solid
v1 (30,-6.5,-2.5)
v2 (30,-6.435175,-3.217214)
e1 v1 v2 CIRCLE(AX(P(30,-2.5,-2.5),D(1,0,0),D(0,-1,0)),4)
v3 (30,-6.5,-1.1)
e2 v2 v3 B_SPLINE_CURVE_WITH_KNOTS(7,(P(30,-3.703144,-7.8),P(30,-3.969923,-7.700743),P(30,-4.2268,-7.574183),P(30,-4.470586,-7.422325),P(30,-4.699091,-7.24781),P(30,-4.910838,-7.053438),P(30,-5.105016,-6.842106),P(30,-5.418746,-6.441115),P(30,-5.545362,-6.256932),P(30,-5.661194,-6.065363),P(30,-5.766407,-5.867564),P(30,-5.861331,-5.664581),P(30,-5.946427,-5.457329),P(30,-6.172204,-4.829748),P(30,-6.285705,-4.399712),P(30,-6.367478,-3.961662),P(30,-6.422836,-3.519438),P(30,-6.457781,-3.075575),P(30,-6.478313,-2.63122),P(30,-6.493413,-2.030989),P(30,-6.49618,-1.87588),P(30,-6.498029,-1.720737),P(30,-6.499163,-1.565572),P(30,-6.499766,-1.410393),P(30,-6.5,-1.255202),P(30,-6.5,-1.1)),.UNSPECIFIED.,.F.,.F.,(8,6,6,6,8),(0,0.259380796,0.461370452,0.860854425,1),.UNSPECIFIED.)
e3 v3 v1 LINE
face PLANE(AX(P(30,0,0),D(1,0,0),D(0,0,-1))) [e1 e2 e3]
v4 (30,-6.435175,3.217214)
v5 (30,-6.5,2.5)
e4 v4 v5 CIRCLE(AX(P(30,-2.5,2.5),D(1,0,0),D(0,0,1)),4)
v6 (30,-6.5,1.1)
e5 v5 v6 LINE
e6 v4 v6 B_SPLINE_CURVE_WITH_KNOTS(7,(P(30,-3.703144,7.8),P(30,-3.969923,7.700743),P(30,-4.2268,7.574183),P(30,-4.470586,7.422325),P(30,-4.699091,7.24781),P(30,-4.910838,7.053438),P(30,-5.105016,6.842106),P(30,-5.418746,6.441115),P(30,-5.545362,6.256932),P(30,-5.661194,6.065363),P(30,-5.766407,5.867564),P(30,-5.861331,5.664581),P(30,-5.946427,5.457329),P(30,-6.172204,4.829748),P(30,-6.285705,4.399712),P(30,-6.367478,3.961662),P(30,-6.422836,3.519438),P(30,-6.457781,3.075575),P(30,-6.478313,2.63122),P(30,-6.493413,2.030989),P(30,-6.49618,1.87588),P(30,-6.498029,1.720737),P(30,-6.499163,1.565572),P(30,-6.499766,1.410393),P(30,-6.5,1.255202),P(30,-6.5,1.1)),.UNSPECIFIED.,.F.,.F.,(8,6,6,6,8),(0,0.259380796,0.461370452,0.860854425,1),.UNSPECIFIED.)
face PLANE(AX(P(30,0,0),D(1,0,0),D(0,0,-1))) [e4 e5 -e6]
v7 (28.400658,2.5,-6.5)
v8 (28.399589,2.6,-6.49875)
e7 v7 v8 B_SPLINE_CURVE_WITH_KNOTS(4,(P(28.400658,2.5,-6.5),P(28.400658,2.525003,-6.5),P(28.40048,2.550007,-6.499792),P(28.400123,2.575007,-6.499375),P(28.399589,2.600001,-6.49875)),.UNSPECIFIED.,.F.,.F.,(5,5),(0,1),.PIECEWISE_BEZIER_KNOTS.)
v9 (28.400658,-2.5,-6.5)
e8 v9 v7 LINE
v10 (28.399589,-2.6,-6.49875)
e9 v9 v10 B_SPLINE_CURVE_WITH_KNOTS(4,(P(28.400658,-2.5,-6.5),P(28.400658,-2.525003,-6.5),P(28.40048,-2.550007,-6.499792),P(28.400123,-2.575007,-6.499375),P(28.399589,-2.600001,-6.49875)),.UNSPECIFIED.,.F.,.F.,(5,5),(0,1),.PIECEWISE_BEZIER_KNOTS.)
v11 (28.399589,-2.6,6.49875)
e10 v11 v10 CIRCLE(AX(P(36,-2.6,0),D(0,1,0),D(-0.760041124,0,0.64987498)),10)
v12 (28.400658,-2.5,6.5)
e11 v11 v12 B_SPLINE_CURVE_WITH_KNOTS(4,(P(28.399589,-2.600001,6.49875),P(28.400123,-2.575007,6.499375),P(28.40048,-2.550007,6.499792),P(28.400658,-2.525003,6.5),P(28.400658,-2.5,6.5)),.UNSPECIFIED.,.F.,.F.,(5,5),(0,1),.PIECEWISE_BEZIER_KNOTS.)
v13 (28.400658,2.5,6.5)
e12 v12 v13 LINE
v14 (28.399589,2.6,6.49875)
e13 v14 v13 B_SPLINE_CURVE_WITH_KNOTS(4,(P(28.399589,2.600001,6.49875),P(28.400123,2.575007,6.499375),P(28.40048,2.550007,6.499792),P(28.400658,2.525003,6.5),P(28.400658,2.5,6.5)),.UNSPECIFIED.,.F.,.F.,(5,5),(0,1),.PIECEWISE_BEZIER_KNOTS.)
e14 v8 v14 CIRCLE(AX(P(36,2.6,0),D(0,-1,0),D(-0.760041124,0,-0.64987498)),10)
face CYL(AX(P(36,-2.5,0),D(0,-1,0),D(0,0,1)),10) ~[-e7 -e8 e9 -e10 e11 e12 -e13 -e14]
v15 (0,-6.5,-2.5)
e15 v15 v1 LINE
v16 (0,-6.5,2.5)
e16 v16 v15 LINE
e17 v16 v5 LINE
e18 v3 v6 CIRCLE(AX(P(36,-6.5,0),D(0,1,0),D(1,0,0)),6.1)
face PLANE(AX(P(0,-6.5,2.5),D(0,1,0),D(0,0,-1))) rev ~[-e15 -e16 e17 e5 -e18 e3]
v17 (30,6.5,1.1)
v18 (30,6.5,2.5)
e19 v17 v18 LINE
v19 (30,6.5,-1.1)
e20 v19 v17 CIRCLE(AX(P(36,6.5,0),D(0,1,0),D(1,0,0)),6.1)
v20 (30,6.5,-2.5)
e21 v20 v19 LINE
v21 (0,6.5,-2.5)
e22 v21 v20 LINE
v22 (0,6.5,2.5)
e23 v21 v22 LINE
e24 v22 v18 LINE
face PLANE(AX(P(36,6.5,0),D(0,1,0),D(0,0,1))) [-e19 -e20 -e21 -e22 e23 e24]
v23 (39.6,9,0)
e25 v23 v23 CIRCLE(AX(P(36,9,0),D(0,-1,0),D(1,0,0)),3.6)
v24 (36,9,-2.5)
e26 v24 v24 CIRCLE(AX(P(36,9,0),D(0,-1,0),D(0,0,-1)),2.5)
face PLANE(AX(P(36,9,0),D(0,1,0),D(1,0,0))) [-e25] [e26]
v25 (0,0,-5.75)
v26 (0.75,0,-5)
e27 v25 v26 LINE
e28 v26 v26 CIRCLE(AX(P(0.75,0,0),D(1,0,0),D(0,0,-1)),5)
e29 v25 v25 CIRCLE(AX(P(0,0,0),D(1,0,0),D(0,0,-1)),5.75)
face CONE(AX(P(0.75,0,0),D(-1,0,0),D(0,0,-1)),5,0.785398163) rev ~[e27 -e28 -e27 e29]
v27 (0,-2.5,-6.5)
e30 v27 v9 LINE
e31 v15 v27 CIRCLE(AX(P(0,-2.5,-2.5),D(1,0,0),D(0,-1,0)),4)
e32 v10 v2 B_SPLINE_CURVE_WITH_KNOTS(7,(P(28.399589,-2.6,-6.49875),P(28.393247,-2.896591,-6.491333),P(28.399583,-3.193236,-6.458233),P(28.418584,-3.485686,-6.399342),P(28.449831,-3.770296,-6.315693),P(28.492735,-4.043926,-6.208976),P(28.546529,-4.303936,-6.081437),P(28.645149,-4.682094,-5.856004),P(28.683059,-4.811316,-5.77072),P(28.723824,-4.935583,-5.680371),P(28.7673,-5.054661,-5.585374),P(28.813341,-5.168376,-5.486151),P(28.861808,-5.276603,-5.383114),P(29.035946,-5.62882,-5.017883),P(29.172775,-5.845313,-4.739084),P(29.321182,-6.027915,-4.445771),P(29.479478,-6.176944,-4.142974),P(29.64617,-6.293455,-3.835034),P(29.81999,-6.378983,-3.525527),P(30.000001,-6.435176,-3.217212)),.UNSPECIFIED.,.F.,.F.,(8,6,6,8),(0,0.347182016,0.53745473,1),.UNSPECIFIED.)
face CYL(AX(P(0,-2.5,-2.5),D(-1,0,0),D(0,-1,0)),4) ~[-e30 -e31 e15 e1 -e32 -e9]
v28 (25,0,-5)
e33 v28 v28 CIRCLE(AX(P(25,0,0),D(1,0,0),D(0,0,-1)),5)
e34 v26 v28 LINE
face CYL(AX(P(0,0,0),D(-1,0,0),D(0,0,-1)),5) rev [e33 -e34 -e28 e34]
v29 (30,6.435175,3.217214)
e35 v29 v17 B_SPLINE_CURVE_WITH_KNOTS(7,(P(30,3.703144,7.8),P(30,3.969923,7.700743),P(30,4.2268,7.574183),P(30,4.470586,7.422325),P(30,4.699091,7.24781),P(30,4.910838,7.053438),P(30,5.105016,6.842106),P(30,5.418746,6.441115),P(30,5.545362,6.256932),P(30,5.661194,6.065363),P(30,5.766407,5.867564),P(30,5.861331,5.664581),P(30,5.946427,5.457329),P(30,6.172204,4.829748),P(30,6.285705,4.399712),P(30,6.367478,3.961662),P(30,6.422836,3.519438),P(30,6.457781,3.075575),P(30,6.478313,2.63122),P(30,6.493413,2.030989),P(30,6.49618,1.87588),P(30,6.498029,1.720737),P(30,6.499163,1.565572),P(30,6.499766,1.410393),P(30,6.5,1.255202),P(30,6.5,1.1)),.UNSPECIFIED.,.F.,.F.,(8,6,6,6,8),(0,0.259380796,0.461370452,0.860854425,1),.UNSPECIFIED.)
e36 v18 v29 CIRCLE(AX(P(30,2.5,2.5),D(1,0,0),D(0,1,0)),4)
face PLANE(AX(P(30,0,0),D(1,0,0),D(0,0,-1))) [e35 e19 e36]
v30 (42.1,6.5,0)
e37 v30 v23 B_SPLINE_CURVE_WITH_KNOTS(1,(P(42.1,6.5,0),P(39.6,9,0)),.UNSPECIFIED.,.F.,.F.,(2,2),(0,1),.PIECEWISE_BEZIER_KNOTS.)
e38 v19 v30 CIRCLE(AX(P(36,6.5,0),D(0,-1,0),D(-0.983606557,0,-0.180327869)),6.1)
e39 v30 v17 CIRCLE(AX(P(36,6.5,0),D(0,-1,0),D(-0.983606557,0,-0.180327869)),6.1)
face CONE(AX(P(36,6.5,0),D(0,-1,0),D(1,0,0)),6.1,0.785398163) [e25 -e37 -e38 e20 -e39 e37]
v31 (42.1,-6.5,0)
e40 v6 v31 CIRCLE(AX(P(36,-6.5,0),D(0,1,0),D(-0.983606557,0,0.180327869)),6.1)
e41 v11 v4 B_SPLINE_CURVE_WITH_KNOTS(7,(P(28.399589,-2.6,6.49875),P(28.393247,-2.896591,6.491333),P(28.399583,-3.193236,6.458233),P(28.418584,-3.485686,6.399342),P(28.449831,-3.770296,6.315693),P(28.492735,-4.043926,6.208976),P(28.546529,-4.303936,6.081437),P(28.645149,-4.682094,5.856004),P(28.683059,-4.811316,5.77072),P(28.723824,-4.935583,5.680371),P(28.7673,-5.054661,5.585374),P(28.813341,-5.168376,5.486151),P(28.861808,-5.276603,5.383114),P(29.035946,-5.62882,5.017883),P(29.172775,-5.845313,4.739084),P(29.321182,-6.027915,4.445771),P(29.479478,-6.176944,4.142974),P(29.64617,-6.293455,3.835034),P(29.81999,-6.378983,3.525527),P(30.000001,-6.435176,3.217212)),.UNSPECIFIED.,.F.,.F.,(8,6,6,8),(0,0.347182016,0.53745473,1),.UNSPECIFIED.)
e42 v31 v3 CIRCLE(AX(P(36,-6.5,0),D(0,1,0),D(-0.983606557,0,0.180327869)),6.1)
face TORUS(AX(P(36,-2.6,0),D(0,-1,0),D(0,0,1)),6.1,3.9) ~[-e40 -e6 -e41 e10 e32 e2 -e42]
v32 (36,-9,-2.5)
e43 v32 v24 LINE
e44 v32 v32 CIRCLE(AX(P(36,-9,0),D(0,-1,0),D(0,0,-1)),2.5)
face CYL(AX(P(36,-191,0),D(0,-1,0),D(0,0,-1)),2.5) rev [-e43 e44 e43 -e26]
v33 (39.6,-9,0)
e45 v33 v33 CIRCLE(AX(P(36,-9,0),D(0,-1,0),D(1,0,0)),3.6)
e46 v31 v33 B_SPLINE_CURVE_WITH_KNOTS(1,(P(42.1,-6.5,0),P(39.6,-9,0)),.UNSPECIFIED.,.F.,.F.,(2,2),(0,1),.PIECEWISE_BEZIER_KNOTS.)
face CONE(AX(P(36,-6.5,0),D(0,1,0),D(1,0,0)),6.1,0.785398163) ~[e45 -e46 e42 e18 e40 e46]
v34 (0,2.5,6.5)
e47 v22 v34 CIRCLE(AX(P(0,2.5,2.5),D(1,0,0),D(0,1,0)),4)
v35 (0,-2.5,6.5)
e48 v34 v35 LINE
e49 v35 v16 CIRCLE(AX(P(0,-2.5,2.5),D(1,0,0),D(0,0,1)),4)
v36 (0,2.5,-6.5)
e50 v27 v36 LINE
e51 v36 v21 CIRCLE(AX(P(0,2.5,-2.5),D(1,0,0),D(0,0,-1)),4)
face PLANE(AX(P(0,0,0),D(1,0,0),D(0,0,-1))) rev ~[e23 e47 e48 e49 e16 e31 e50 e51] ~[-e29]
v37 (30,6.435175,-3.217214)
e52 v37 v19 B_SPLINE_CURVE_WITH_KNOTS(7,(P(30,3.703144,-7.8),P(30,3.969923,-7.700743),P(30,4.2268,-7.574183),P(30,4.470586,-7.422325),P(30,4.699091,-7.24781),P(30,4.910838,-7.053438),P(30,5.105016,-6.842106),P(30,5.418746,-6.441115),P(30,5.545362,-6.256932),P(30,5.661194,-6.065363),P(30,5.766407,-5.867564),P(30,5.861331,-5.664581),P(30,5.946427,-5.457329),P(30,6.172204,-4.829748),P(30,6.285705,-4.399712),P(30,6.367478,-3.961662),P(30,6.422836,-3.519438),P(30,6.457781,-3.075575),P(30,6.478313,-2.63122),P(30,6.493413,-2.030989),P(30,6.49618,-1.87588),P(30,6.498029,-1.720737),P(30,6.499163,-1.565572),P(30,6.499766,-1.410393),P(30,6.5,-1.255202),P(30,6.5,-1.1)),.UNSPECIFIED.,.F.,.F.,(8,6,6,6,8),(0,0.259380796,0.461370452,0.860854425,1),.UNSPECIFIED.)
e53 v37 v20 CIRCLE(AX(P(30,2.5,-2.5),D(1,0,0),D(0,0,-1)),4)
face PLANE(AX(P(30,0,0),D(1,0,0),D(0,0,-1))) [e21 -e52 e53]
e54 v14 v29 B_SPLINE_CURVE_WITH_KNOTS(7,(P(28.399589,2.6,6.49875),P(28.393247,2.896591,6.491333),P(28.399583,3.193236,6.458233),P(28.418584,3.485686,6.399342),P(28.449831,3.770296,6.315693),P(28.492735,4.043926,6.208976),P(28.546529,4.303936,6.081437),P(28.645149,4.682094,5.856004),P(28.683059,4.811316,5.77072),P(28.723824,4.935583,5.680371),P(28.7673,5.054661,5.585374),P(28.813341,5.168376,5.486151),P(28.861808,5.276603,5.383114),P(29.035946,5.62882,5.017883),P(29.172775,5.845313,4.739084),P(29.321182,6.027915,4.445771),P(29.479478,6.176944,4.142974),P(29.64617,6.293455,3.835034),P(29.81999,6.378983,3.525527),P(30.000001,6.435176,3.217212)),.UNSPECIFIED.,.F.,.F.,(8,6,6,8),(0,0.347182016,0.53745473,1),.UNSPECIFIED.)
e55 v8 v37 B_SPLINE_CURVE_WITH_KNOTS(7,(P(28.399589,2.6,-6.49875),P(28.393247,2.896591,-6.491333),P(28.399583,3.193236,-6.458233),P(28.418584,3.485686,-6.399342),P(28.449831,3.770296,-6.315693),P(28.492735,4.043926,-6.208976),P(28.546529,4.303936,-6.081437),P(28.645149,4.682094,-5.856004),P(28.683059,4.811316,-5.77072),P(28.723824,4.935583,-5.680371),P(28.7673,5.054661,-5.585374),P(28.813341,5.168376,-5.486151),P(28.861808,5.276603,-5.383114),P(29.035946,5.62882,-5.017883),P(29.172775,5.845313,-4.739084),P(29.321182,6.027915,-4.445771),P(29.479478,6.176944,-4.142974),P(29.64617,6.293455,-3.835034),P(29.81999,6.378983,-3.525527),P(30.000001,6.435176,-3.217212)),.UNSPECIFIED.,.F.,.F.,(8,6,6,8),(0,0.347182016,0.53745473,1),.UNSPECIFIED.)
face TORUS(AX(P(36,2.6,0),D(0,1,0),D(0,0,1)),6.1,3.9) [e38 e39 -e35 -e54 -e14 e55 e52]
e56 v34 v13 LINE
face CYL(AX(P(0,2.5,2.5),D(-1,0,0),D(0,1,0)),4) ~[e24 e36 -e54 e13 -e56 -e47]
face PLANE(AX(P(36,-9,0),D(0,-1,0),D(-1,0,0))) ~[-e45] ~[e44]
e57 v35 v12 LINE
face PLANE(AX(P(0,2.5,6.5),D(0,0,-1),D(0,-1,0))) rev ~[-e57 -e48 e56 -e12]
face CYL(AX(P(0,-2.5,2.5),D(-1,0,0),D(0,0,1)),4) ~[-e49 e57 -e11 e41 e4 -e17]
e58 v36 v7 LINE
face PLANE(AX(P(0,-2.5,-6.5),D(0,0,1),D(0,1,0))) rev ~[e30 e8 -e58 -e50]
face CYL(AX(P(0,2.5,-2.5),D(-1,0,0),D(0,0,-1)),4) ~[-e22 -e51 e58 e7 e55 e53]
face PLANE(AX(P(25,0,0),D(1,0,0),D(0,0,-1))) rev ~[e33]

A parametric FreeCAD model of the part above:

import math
import FreeCAD as App
import Part
import Sketcher
from FreeCAD import Vector


def edges_at(feature, points):
    """Names of the edges that pass closest to the given points."""
    edges = feature.Shape.Edges
    near = lambda p: min(range(len(edges)), key=lambda i: edges[i].distToShape(Part.Vertex(*p))[0])
    return sorted({f"Edge{near(p) + 1}" for p in points})


def add_polygon(sketch, points):
    """Adds a closed chain of lines whose ends are joined by coincident constraints."""
    first, n = sketch.GeometryCount, len(points)
    for a, b in zip(points, points[1:] + points[:1]):
        sketch.addGeometry(Part.LineSegment(App.Vector(*a, 0), App.Vector(*b, 0)), False)
    for i in range(n):
        sketch.addConstraint(Sketcher.Constraint("Coincident", first + i, 2, first + (i + 1) % n, 1))

doc = App.newDocument("Part")
body = doc.addObject("PartDesign::Body", "Body")

# Sketch on YZ plane
sketch1 = body.newObject("Sketcher::SketchObject", "Sketch")
sketch1.AttachmentSupport = (doc.getObject("YZ_Plane"), [""])
sketch1.MapMode = "FlatFace"
sketch1.addGeometry(Part.LineSegment(Vector(6.5, -2.5, 0), Vector(6.5, 2.5, 0)), False)
sketch1.addGeometry(Part.ArcOfCircle(Part.Circle(Vector(2.5, 2.5, 0), Vector(0, 0, 1), 4), math.radians(0), math.radians(90)), False)
sketch1.addGeometry(Part.LineSegment(Vector(2.5, 6.5, 0), Vector(-2.5, 6.5, 0)), False)
sketch1.addGeometry(Part.ArcOfCircle(Part.Circle(Vector(-2.5, 2.5, 0), Vector(0, 0, 1), 4), math.radians(90), math.radians(180)), False)
sketch1.addGeometry(Part.LineSegment(Vector(-6.5, 2.5, 0), Vector(-6.5, -2.5, 0)), False)
sketch1.addGeometry(Part.ArcOfCircle(Part.Circle(Vector(-2.5, -2.5, 0), Vector(0, 0, 1), 4), math.radians(180), math.radians(270)), False)
sketch1.addGeometry(Part.LineSegment(Vector(-2.5, -6.5, 0), Vector(2.5, -6.5, 0)), False)
sketch1.addGeometry(Part.ArcOfCircle(Part.Circle(Vector(2.5, -2.5, 0), Vector(0, 0, 1), 4), math.radians(-90), math.radians(0)), False)
sketch1.addConstraint(Sketcher.Constraint("Tangent", 0, 2, 1, 1))
sketch1.addConstraint(Sketcher.Constraint("Tangent", 1, 2, 2, 1))
sketch1.addConstraint(Sketcher.Constraint("Tangent", 2, 2, 3, 1))
sketch1.addConstraint(Sketcher.Constraint("Tangent", 3, 2, 4, 1))
sketch1.addConstraint(Sketcher.Constraint("Tangent", 4, 2, 5, 1))
sketch1.addConstraint(Sketcher.Constraint("Tangent", 5, 2, 6, 1))
sketch1.addConstraint(Sketcher.Constraint("Tangent", 6, 2, 7, 1))
sketch1.addConstraint(Sketcher.Constraint("Tangent", 7, 2, 0, 1))
sketch1.addConstraint(Sketcher.Constraint("Vertical", 0))
sketch1.addConstraint(Sketcher.Constraint("Horizontal", 2))
sketch1.addConstraint(Sketcher.Constraint("Vertical", 4))
sketch1.addConstraint(Sketcher.Constraint("Horizontal", 6))
sketch1.addConstraint(Sketcher.Constraint("Equal", 1, 3))
sketch1.addConstraint(Sketcher.Constraint("Equal", 3, 5))
sketch1.addConstraint(Sketcher.Constraint("Equal", 5, 7))
sketch1.addConstraint(Sketcher.Constraint("Symmetric", 1, 3, 5, 3, -1, 1))
sketch1.addConstraint(Sketcher.Constraint("Equal", 6, 0))
sketch1.addConstraint(Sketcher.Constraint("Radius", 1, 4.0))
sketch1.addConstraint(Sketcher.Constraint("DistanceX", 2, 2, 2, 1, 5.0))
pad1 = body.newObject("PartDesign::Pad", "Pad")
pad1.Profile = sketch1
pad1.Length = 30

# Sketch on YZ plane
sketch2 = body.newObject("Sketcher::SketchObject", "Sketch001")
sketch2.AttachmentSupport = (doc.getObject("YZ_Plane"), [""])
sketch2.MapMode = "FlatFace"
sketch2.addGeometry(Part.Circle(Vector(0, 0, 0), Vector(0, 0, 1), 5), False)
sketch2.addConstraint(Sketcher.Constraint("Coincident", 0, 3, -1, 1))
sketch2.addConstraint(Sketcher.Constraint("Diameter", 0, 10.0))
pocket1 = body.newObject("PartDesign::Pocket", "Pocket")
pocket1.Profile = sketch2
pocket1.Length = 25
pocket1.Reversed = True
doc.recompute()

chamfer = body.newObject("PartDesign::Chamfer", "Chamfer")
chamfer.Base = (pocket1, edges_at(pocket1, [(0, 0, 5)]))
chamfer.Size = 0.75

# Sketch on YZ plane
sketch3 = body.newObject("Sketcher::SketchObject", "Sketch002")
sketch3.AttachmentSupport = (doc.getObject("YZ_Plane"), [""])
sketch3.MapMode = "FlatFace"
sketch3.AttachmentOffset = App.Placement(Vector(0, 0, 36), App.Rotation())
add_polygon(sketch3, [(2.5, 10), (-2.5, 10), (-2.5, 0), (2.5, 0)])  # lines 0-3
sketch3.addConstraint(Sketcher.Constraint("Horizontal", 0))
sketch3.addConstraint(Sketcher.Constraint("Vertical", 1))
sketch3.addConstraint(Sketcher.Constraint("Horizontal", 2))
sketch3.addConstraint(Sketcher.Constraint("Vertical", 3))
sketch3.addConstraint(Sketcher.Constraint("Symmetric", 1, 2, 2, 2, -1, 1))
sketch3.addConstraint(Sketcher.Constraint("DistanceX", 0, 2, 0, 1, 5.0))
sketch3.addConstraint(Sketcher.Constraint("DistanceY", 1, 2, 1, 1, 10.0))
revolution = body.newObject("PartDesign::Revolution", "Revolution")
revolution.Profile = sketch3
revolution.ReferenceAxis = (sketch3, ["H_Axis"])
revolution.Angle = 360

# Sketch on YZ plane
sketch4 = body.newObject("Sketcher::SketchObject", "Sketch003")
sketch4.AttachmentSupport = (doc.getObject("YZ_Plane"), [""])
sketch4.MapMode = "FlatFace"
sketch4.AttachmentOffset = App.Placement(Vector(0, 0, 36), App.Rotation())
sketch4.addGeometry(Part.LineSegment(Vector(2.5, 10, 0), Vector(2.5, 0, 0)), False)
sketch4.addGeometry(Part.LineSegment(Vector(2.5, 0, 0), Vector(6.5, 0, 0)), False)
sketch4.addGeometry(Part.LineSegment(Vector(6.5, 0, 0), Vector(6.5, 6.1, 0)), False)
sketch4.addGeometry(Part.ArcOfCircle(Part.Circle(Vector(2.6, 6.1, 0), Vector(0, 0, 1), 3.9), math.radians(0), math.radians(90)), False)
sketch4.addGeometry(Part.LineSegment(Vector(2.6, 10, 0), Vector(2.5, 10, 0)), False)
sketch4.addConstraint(Sketcher.Constraint("Coincident", 0, 2, 1, 1))
sketch4.addConstraint(Sketcher.Constraint("Coincident", 1, 2, 2, 1))
sketch4.addConstraint(Sketcher.Constraint("Tangent", 2, 2, 3, 1))
sketch4.addConstraint(Sketcher.Constraint("Tangent", 3, 2, 4, 1))
sketch4.addConstraint(Sketcher.Constraint("Coincident", 4, 2, 0, 1))
sketch4.addConstraint(Sketcher.Constraint("Vertical", 0))
sketch4.addConstraint(Sketcher.Constraint("Horizontal", 1))
sketch4.addConstraint(Sketcher.Constraint("Vertical", 2))
sketch4.addConstraint(Sketcher.Constraint("Horizontal", 4))
sketch4.addConstraint(Sketcher.Constraint("PointOnObject", 0, 2, -1))
sketch4.addConstraint(Sketcher.Constraint("Radius", 3, 3.9))
sketch4.addConstraint(Sketcher.Constraint("DistanceX", 1, 1, 1, 2, 4.0))
sketch4.addConstraint(Sketcher.Constraint("DistanceY", 0, 2, 0, 1, 10.0))
sketch4.addConstraint(Sketcher.Constraint("DistanceX", -1, 1, 3, 3, 2.6))
revolution2 = body.newObject("PartDesign::Revolution", "Revolution001")
revolution2.Profile = sketch4
revolution2.ReferenceAxis = (sketch4, ["H_Axis"])
revolution2.Angle = 360
doc.recompute()

mirrored = body.newObject("PartDesign::Mirrored", "Mirrored")
mirrored.Originals = [revolution2]
mirrored.MirrorPlane = (doc.getObject("XZ_Plane"), [""])
body.Tip = mirrored

# Sketch on XZ plane
sketch5 = body.newObject("Sketcher::SketchObject", "Sketch004")
sketch5.AttachmentSupport = (doc.getObject("XZ_Plane"), [""])
sketch5.MapMode = "FlatFace"
sketch5.AttachmentOffset = App.Placement(Vector(0, 0, -6.5), App.Rotation())
sketch5.addGeometry(Part.Circle(Vector(36, 0, 0), Vector(0, 0, 1), 6.1), False)
sketch5.addConstraint(Sketcher.Constraint("PointOnObject", 0, 3, -1))
sketch5.addConstraint(Sketcher.Constraint("Diameter", 0, 12.2))
sketch5.addConstraint(Sketcher.Constraint("DistanceX", -1, 1, 0, 3, 36.0))
pad2 = body.newObject("PartDesign::Pad", "Pad001")
pad2.Profile = sketch5
pad2.Length = 2.5
pad2.Reversed = True
pad2.TaperAngle = -45
doc.recompute()

mirrored2 = body.newObject("PartDesign::Mirrored", "Mirrored001")
mirrored2.Originals = [pad2]
mirrored2.MirrorPlane = (doc.getObject("XZ_Plane"), [""])
body.Tip = mirrored2

# Sketch on XZ plane
sketch6 = body.newObject("Sketcher::SketchObject", "Sketch005")
sketch6.AttachmentSupport = (doc.getObject("XZ_Plane"), [""])
sketch6.MapMode = "FlatFace"
sketch6.AttachmentOffset = App.Placement(Vector(0, 0, -9), App.Rotation())
sketch6.addGeometry(Part.Circle(Vector(36, 0, 0), Vector(0, 0, 1), 2.5), False)
sketch6.addConstraint(Sketcher.Constraint("PointOnObject", 0, 3, -1))
sketch6.addConstraint(Sketcher.Constraint("Diameter", 0, 5.0))
sketch6.addConstraint(Sketcher.Constraint("DistanceX", -1, 1, 0, 3, 36.0))
pocket2 = body.newObject("PartDesign::Pocket", "Pocket001")
pocket2.Profile = sketch6
pocket2.Type = "ThroughAll"
pocket2.Midplane = True

doc.recompute()
